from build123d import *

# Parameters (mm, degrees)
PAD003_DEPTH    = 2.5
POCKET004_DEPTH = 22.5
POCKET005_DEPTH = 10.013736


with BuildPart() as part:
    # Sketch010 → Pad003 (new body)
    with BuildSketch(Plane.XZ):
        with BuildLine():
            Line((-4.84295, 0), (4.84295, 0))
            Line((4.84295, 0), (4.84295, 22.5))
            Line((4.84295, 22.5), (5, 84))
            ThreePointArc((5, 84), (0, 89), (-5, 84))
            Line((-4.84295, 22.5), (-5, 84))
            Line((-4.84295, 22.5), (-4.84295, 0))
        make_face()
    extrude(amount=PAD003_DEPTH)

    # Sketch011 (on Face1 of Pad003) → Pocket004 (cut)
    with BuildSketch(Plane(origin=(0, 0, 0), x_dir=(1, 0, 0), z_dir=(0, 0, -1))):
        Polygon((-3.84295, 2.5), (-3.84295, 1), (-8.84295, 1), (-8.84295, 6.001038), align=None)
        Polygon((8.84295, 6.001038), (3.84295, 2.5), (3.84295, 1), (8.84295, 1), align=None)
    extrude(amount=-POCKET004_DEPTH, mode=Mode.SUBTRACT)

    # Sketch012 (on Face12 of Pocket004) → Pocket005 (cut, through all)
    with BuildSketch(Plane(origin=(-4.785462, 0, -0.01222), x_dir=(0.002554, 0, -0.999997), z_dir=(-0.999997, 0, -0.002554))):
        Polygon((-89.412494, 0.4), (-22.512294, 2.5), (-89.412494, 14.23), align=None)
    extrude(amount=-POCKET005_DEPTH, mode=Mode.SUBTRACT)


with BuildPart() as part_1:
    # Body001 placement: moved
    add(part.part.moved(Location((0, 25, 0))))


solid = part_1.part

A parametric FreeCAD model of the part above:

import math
import FreeCAD as App
import Part
import Sketcher
from FreeCAD import Vector
Q = App.Units.Quantity


def add_polygon(sketch, points):
    """Adds a closed chain of lines whose ends are joined by coincident constraints."""
    first, n = sketch.GeometryCount, len(points)
    for a, b in zip(points, points[1:] + points[:1]):
        sketch.addGeometry(Part.LineSegment(App.Vector(*a, 0), App.Vector(*b, 0)), False)
    for i in range(n):
        sketch.addConstraint(Sketcher.Constraint("Coincident", first + i, 2, first + (i + 1) % n, 1))

doc = App.newDocument("Part")
params = doc.addObject("Spreadsheet::Sheet", "Params")
for row, (alias, value) in enumerate([
    ("sketch1_radius", "5 mm"),
    ("sketch1_height", "22.5 mm"),
    ("pad1_length", "2.5 mm"),
    ("sketch2_width", "5 mm"),
    ("sketch2_height", "1.5 mm"),
    ("pocket1_length", "22.5 mm"),
    ("sketch3_height", "13.83 mm"),
], start=1):
    params.set(f"A{row}", alias)
    params.set(f"B{row}", "=" + value)
    params.setAlias(f"B{row}", alias)

body = doc.addObject("PartDesign::Body", "Body")

sketch1 = body.newObject("Sketcher::SketchObject", "Sketch")
sketch1.AttachmentSupport = (doc.getObject("XZ_Plane"), [""])
sketch1.MapMode = "FlatFace"
sketch1.addGeometry(Part.LineSegment(Vector(-5, 0, 0), Vector(5, 0, 0)), False)
sketch1.addGeometry(Part.LineSegment(Vector(5, 0, 0), Vector(5, 22, 0)), False)
sketch1.addGeometry(Part.LineSegment(Vector(5, 22, 0), Vector(5, 84, 0)), False)
sketch1.addGeometry(Part.ArcOfCircle(Part.Circle(Vector(0, 84, 0), Vector(0, 0, 1), 5), math.radians(0), math.radians(180)), False)
sketch1.addGeometry(Part.LineSegment(Vector(-5, 84, 0), Vector(-5, 22, 0)), False)
sketch1.addGeometry(Part.LineSegment(Vector(-5, 22, 0), Vector(-5, 0, 0)), False)
sketch1.addConstraint(Sketcher.Constraint("Coincident", 0, 2, 1, 1))
sketch1.addConstraint(Sketcher.Constraint("Coincident", 1, 2, 2, 1))
sketch1.addConstraint(Sketcher.Constraint("Coincident", 2, 2, 3, 1))
sketch1.addConstraint(Sketcher.Constraint("Coincident", 3, 2, 4, 1))
sketch1.addConstraint(Sketcher.Constraint("Coincident", 4, 2, 5, 1))
sketch1.addConstraint(Sketcher.Constraint("Coincident", 5, 2, 0, 1))
sketch1.addConstraint(Sketcher.Constraint("Horizontal", 0))
sketch1.addConstraint(Sketcher.Constraint("Vertical", 1))
sketch1.addConstraint(Sketcher.Constraint("Vertical", 5))
sketch1.addConstraint(Sketcher.Constraint("Symmetric", 0, 2, 5, 2, -1, 1))
sketch1.addConstraint(Sketcher.Constraint("Symmetric", 2, 2, 3, 2, -2))
sketch1.addConstraint(Sketcher.Constraint("Horizontal", 3, 3, 2, 2))
sketch1.addConstraint(Sketcher.Constraint("Horizontal", 1, 2, 4, 2))
sketch1.addConstraint(Sketcher.Constraint("Radius", 3, 5.0))
sketch1.addConstraint(Sketcher.Constraint("DistanceY", 1, 1, 1, 2, 22.5))
sketch1.addConstraint(Sketcher.Constraint("DistanceY", -1, 1, 3, 3, 84.0))
sketch1.addConstraint(Sketcher.Constraint("DistanceX", 0, 1, 0, 2, 9.6859))
sketch1.setExpression("Constraints[13]", "Params.sketch1_radius")
sketch1.setExpression("Constraints[14]", "Params.sketch1_height")
pad1 = body.newObject("PartDesign::Pad", "Pad")
pad1.Profile = sketch1
pad1.setExpression("Length", "Params.pad1_length")

sketch2 = body.newObject("Sketcher::SketchObject", "Sketch001")
sketch2.AttachmentSupport = (doc.getObject("XY_Plane"), [""])
sketch2.MapMode = "FlatFace"
add_polygon(sketch2, [(-3.8, -1), (-3.8, -2.5), (-8.8, -6), (-8.8, -1)])
add_polygon(sketch2, [(8.8, -6), (3.8, -2.5), (3.8, -1), (8.8, -1)])
sketch2.addConstraint(Sketcher.Constraint("Vertical", 0))
sketch2.addConstraint(Sketcher.Constraint("Vertical", 2))
sketch2.addConstraint(Sketcher.Constraint("Horizontal", 3))
sketch2.addConstraint(Sketcher.Constraint("Vertical", 5))
sketch2.addConstraint(Sketcher.Constraint("Horizontal", 6))
sketch2.addConstraint(Sketcher.Constraint("Vertical", 7))
sketch2.addConstraint(Sketcher.Constraint("Symmetric", 0, 2, 4, 2, -2))
sketch2.addConstraint(Sketcher.Constraint("Symmetric", 2, 2, 6, 2, -2))
sketch2.addConstraint(Sketcher.Constraint("Horizontal", 1, 2, 7, 2))
sketch2.addConstraint(Sketcher.Constraint("DistanceX", 3, 1, 3, 2, 5.0))
sketch2.addConstraint(Sketcher.Constraint("Angle", 1, Q("-144.999998 deg")))
sketch2.addConstraint(Sketcher.Constraint("DistanceY", 0, 2, 0, 1, 1.5))
sketch2.addConstraint(Sketcher.Constraint("DistanceY", 2, 2, -1, 1, 1.0))
sketch2.addConstraint(Sketcher.Constraint("DistanceX", 0, 2, 4, 2, 7.6859))
sketch2.setExpression("Constraints[17]", "Params.sketch2_width")
sketch2.setExpression("Constraints[19]", "Params.sketch2_height")
pocket1 = body.newObject("PartDesign::Pocket", "Pocket")
pocket1.Profile = sketch2
pocket1.setExpression("Length", "Params.pocket1_length")
pocket1.Reversed = True

sketch3 = body.newObject("Sketcher::SketchObject", "Sketch002")
sketch3.Placement = App.Placement(Vector(-4.785462, 0, -0.01222), App.Rotation(Vector(0.002553999, 0, -0.999996739), Vector(0, -1.000000001, 0), Vector(-0.999996739, 0, -0.002553999), "ZXY"))
add_polygon(sketch3, [(-89, 0), (-23, 3), (-89, 14)])
sketch3.addConstraint(Sketcher.Constraint("Vertical", 2))
sketch3.addConstraint(Sketcher.Constraint("DistanceY", 2, 2, 2, 1, 13.83))
sketch3.addConstraint(Sketcher.Constraint("DistanceY", -1, 1, 0, 2, 2.5))
sketch3.addConstraint(Sketcher.Constraint("DistanceY", -1, 1, 2, 2, 0.4))
sketch3.addConstraint(Sketcher.Constraint("DistanceX", 1, 2, 0, 2, 66.9002))
sketch3.addConstraint(Sketcher.Constraint("DistanceX", 0, 2, -1, 1, 22.512294))
sketch3.setExpression("Constraints[4]", "Params.sketch3_height")
pocket2 = body.newObject("PartDesign::Pocket", "Pocket001")
pocket2.Profile = sketch3
pocket2.Type = "ThroughAll"
body2 = doc.addObject("PartDesign::Body", "Body001")
doc.recompute()

body.Placement = App.Placement(Vector(0, 25, 0), App.Rotation(Vector(0, 0, 1), 0))
boolean = body2.newObject("PartDesign::Boolean", "Boolean")
boolean.Type = "Fuse"
boolean.addObjects([body])

doc.recompute()
